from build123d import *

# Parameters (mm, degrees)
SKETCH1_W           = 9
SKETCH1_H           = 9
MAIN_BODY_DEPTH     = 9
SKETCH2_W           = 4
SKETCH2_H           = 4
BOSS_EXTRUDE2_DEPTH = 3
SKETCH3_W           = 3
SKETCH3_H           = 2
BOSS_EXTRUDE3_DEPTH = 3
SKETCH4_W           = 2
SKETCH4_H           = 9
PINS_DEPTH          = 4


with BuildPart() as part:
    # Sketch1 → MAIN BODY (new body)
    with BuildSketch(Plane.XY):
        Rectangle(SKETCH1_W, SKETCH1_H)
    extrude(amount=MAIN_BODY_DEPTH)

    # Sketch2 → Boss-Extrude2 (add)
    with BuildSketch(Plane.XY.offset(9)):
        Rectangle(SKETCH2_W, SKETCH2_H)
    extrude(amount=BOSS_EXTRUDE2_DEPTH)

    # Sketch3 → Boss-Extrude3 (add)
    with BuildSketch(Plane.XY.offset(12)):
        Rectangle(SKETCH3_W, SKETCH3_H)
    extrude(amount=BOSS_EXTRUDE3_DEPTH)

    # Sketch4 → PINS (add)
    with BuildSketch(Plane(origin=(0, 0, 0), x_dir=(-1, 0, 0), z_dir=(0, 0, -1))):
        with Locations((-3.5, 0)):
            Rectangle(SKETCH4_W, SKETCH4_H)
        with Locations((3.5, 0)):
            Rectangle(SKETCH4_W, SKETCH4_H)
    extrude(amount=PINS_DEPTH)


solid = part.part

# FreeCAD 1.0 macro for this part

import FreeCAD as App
import Part
import Sketcher

V = App.Vector
Q = App.Units.Quantity

doc = App.newDocument("Part")
body = doc.addObject("PartDesign::Body", "Body")

# Sketch on XY plane
sketch1 = doc.addObject("Sketcher::SketchObject", "Sketch")
body.addObject(sketch1)
sketch1.AttachmentSupport = (doc.XY_Plane, [""])
sketch1.MapMode = "FlatFace"
sketch1.addGeometry([
    Part.LineSegment(V(-4, 4, 0), V(-4, -4, 0)),
    Part.LineSegment(V(-4, -4, 0), V(4, -4, 0)),
    Part.LineSegment(V(4, -4, 0), V(4, 4, 0)),
    Part.LineSegment(V(4, 4, 0), V(-4, 4, 0)),
], False)
sketch1.addConstraint([
    Sketcher.Constraint("Coincident", 0, 2, 1, 1),
    Sketcher.Constraint("Coincident", 1, 2, 2, 1),
    Sketcher.Constraint("Coincident", 2, 2, 3, 1),
    Sketcher.Constraint("Coincident", 3, 2, 0, 1),
    Sketcher.Constraint("Vertical", 0),
    Sketcher.Constraint("Horizontal", 1),
    Sketcher.Constraint("Vertical", 2),
    Sketcher.Constraint("Horizontal", 3),
    Sketcher.Constraint("Symmetric", 0, 2, 2, 2, -1, 1),
    Sketcher.Constraint("Equal", 3, 0),
    Sketcher.Constraint("DistanceX", 1, 1, 1, 2, Q("9 mm")),
])
pad1 = doc.addObject("PartDesign::Pad", "Pad")
body.addObject(pad1)
pad1.Profile = sketch1
pad1.Length = 9

# Sketch on XY plane
sketch2 = doc.addObject("Sketcher::SketchObject", "Sketch001")
body.addObject(sketch2)
sketch2.AttachmentSupport = (doc.XY_Plane, [""])
sketch2.MapMode = "FlatFace"
sketch2.AttachmentOffset = App.Placement(V(0, 0, 9), App.Rotation())
sketch2.addGeometry([
    Part.LineSegment(V(-2, 2, 0), V(-2, -2, 0)),
    Part.LineSegment(V(-2, -2, 0), V(2, -2, 0)),
    Part.LineSegment(V(2, -2, 0), V(2, 2, 0)),
    Part.LineSegment(V(2, 2, 0), V(-2, 2, 0)),
], False)
sketch2.addConstraint([
    Sketcher.Constraint("Coincident", 0, 2, 1, 1),
    Sketcher.Constraint("Coincident", 1, 2, 2, 1),
    Sketcher.Constraint("Coincident", 2, 2, 3, 1),
    Sketcher.Constraint("Coincident", 3, 2, 0, 1),
    Sketcher.Constraint("Vertical", 0),
    Sketcher.Constraint("Horizontal", 1),
    Sketcher.Constraint("Vertical", 2),
    Sketcher.Constraint("Horizontal", 3),
    Sketcher.Constraint("Symmetric", 0, 2, 2, 2, -1, 1),
    Sketcher.Constraint("Equal", 3, 0),
    Sketcher.Constraint("DistanceX", 1, 1, 1, 2, Q("4 mm")),
])
pad2 = doc.addObject("PartDesign::Pad", "Pad001")
body.addObject(pad2)
pad2.Profile = sketch2
pad2.Length = 3

# Sketch on XY plane
sketch3 = doc.addObject("Sketcher::SketchObject", "Sketch002")
body.addObject(sketch3)
sketch3.AttachmentSupport = (doc.XY_Plane, [""])
sketch3.MapMode = "FlatFace"
sketch3.AttachmentOffset = App.Placement(V(0, 0, 12), App.Rotation())
sketch3.addGeometry([
    Part.LineSegment(V(-1.5, 1, 0), V(-1.5, -1, 0)),
    Part.LineSegment(V(-1.5, -1, 0), V(1.5, -1, 0)),
    Part.LineSegment(V(1.5, -1, 0), V(1.5, 1, 0)),
    Part.LineSegment(V(1.5, 1, 0), V(-1.5, 1, 0)),
], False)
sketch3.addConstraint([
    Sketcher.Constraint("Coincident", 0, 2, 1, 1),
    Sketcher.Constraint("Coincident", 1, 2, 2, 1),
    Sketcher.Constraint("Coincident", 2, 2, 3, 1),
    Sketcher.Constraint("Coincident", 3, 2, 0, 1),
    Sketcher.Constraint("Vertical", 0),
    Sketcher.Constraint("Horizontal", 1),
    Sketcher.Constraint("Vertical", 2),
    Sketcher.Constraint("Horizontal", 3),
    Sketcher.Constraint("Symmetric", 0, 2, 2, 2, -1, 1),
    Sketcher.Constraint("DistanceX", 1, 1, 1, 2, Q("3 mm")),
    Sketcher.Constraint("DistanceY", 0, 2, 0, 1, Q("2 mm")),
])
pad3 = doc.addObject("PartDesign::Pad", "Pad002")
body.addObject(pad3)
pad3.Profile = sketch3
pad3.Length = 3

# Sketch on XY plane
sketch4 = doc.addObject("Sketcher::SketchObject", "Sketch003")
body.addObject(sketch4)
sketch4.AttachmentSupport = (doc.XY_Plane, [""])
sketch4.MapMode = "FlatFace"
sketch4.addGeometry([
    Part.LineSegment(V(4.5, 4.5, 0), V(4.5, -4.5, 0)),  # 0
    Part.LineSegment(V(4.5, -4.5, 0), V(2.5, -4.5, 0)),  # 1
    Part.LineSegment(V(2.5, -4.5, 0), V(2.5, 4.5, 0)),  # 2
    Part.LineSegment(V(2.5, 4.5, 0), V(4.5, 4.5, 0)),  # 3
    Part.LineSegment(V(-2.5, 4.5, 0), V(-2.5, -4.5, 0)),  # 4
    Part.LineSegment(V(-2.5, -4.5, 0), V(-4.5, -4.5, 0)),  # 5
    Part.LineSegment(V(-4.5, -4.5, 0), V(-4.5, 4.5, 0)),  # 6
    Part.LineSegment(V(-4.5, 4.5, 0), V(-2.5, 4.5, 0)),  # 7
], False)
sketch4.addConstraint([
    Sketcher.Constraint("Coincident", 0, 2, 1, 1),
    Sketcher.Constraint("Coincident", 1, 2, 2, 1),
    Sketcher.Constraint("Coincident", 2, 2, 3, 1),
    Sketcher.Constraint("Coincident", 3, 2, 0, 1),
    Sketcher.Constraint("Coincident", 4, 2, 5, 1),
    Sketcher.Constraint("Coincident", 5, 2, 6, 1),
    Sketcher.Constraint("Coincident", 6, 2, 7, 1),
    Sketcher.Constraint("Coincident", 7, 2, 4, 1),
    Sketcher.Constraint("Vertical", 0),
    Sketcher.Constraint("Horizontal", 1),
    Sketcher.Constraint("Vertical", 2),
    Sketcher.Constraint("Horizontal", 3),
    Sketcher.Constraint("Vertical", 4),
    Sketcher.Constraint("Horizontal", 5),
    Sketcher.Constraint("Vertical", 6),
    Sketcher.Constraint("Horizontal", 7),
    Sketcher.Constraint("Symmetric", 2, 2, 4, 2, -1, 1),
    Sketcher.Constraint("Symmetric", 0, 2, 6, 2, -1, 1),
    Sketcher.Constraint("Horizontal", 1, 2, 4, 2),
    Sketcher.Constraint("DistanceX", 1, 2, 1, 1, Q("2 mm")),
    Sketcher.Constraint("DistanceY", 0, 2, 0, 1, Q("9 mm")),
    Sketcher.Constraint("DistanceX", 4, 2, 1, 2, Q("5 mm")),
])
pad4 = doc.addObject("PartDesign::Pad", "Pad003")
body.addObject(pad4)
pad4.Profile = sketch4
pad4.Length = 4
pad4.Reversed = True

doc.recompute()
